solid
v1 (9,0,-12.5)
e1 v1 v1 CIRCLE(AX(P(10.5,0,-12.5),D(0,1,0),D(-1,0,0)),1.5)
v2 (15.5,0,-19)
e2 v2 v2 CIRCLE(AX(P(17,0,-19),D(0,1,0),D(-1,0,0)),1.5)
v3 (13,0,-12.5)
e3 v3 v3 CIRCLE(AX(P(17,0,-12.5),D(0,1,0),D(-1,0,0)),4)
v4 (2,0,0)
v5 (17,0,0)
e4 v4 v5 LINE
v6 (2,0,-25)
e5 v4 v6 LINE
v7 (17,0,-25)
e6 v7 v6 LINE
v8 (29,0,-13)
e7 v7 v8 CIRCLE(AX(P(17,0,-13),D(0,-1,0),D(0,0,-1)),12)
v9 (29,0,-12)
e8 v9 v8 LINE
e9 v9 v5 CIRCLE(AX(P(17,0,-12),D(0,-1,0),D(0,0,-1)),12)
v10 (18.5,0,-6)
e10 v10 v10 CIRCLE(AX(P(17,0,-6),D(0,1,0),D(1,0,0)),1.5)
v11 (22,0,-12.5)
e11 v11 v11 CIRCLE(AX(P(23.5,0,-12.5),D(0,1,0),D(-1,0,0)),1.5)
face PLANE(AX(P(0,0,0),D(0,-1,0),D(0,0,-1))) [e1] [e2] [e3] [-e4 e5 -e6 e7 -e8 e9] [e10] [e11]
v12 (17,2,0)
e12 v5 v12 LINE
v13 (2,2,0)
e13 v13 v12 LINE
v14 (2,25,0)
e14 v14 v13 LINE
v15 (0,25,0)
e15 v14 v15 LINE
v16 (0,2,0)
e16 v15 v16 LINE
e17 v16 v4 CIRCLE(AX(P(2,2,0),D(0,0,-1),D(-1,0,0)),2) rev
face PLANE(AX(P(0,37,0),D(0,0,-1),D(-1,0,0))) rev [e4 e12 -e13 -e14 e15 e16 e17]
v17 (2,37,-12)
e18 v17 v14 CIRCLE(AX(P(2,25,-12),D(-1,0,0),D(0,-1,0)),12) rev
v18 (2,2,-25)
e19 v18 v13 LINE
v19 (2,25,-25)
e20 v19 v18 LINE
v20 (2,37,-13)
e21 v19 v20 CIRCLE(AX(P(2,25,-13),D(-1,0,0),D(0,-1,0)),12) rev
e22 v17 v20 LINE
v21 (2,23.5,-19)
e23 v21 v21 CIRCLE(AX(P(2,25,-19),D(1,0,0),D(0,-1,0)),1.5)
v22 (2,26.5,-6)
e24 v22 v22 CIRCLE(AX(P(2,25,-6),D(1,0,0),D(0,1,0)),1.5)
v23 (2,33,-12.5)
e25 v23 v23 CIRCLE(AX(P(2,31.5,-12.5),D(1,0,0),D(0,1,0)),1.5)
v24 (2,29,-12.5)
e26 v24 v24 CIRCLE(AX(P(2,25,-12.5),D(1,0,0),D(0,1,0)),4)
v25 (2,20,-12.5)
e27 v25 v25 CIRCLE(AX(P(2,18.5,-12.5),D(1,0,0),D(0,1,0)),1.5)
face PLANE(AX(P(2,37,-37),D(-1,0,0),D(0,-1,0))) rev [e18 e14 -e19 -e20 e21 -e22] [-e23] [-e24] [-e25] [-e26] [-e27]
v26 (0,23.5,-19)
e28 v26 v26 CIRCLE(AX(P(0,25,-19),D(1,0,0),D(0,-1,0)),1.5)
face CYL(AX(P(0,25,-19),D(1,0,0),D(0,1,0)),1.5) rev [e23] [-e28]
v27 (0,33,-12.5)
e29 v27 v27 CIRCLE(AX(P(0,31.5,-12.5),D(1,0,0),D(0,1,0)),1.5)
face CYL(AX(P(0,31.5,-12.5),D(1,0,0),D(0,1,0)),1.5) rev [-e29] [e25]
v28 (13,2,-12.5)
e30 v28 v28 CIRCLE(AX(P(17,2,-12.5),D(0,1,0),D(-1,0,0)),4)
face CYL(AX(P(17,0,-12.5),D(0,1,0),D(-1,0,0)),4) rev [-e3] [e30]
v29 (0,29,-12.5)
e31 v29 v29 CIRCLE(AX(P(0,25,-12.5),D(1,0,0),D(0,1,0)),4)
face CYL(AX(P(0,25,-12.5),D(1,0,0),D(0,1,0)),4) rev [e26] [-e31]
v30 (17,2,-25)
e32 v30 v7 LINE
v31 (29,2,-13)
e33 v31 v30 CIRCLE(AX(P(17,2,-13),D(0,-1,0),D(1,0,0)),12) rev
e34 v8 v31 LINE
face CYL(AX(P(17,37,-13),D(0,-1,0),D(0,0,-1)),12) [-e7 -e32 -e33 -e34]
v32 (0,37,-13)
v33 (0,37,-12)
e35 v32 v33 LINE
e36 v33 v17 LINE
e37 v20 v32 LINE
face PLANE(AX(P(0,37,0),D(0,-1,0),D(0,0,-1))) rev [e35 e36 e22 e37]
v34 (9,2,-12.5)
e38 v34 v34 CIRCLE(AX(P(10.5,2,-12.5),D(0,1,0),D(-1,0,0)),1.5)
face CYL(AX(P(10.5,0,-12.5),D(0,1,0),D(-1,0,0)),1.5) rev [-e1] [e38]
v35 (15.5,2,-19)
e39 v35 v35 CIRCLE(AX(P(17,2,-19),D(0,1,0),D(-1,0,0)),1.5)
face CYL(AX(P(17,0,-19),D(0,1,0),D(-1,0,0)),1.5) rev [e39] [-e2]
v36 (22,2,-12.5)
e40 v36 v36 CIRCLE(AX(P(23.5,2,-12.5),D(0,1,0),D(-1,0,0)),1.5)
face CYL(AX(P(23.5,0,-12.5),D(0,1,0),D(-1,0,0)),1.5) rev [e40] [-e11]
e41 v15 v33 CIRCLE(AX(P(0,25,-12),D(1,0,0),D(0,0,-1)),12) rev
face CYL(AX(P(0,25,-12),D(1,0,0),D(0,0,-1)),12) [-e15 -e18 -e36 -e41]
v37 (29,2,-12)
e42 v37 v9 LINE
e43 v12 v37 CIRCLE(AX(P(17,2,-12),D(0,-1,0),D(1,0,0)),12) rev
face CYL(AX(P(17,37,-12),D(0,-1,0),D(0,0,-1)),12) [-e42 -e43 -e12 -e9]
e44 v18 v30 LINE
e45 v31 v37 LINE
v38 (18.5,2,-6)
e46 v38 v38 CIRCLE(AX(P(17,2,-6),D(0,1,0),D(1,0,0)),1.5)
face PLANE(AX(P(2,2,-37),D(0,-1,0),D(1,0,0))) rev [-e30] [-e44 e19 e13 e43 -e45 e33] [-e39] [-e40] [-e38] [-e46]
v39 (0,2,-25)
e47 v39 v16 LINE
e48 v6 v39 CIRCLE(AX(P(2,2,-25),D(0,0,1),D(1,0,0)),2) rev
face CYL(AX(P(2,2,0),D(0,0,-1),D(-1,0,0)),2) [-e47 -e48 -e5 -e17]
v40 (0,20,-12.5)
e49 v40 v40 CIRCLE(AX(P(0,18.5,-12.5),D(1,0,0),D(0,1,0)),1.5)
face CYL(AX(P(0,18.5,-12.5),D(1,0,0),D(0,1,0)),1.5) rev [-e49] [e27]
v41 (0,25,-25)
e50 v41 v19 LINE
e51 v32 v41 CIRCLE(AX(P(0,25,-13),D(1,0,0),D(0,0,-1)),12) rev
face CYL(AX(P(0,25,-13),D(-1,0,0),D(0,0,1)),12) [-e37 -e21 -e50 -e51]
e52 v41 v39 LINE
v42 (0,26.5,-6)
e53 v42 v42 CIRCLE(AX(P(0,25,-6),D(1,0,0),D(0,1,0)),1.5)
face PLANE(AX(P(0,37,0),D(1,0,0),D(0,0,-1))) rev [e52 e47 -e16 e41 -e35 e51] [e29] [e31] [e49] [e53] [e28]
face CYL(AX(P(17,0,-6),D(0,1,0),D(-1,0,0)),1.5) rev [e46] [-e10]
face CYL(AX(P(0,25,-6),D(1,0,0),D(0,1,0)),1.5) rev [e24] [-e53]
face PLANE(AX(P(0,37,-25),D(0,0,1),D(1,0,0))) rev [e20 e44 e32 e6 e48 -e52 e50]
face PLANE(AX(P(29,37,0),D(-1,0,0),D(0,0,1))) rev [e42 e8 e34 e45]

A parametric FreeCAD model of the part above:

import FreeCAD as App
import Part
import Sketcher
Q = App.Units.Quantity


def edges_at(feature, points):
    """Names of the edges that pass closest to the given points."""
    edges = feature.Shape.Edges
    near = lambda p: min(range(len(edges)), key=lambda i: edges[i].distToShape(Part.Vertex(*p))[0])
    return sorted({f"Edge{near(p) + 1}" for p in points})


def add_polygon(sketch, points):
    """Adds a closed chain of lines whose ends are joined by coincident constraints."""
    first, n = sketch.GeometryCount, len(points)
    for a, b in zip(points, points[1:] + points[:1]):
        sketch.addGeometry(Part.LineSegment(App.Vector(*a, 0), App.Vector(*b, 0)), False)
    for i in range(n):
        sketch.addConstraint(Sketcher.Constraint("Coincident", first + i, 2, first + (i + 1) % n, 1))

doc = App.newDocument("Part")
params = doc.addObject("Spreadsheet::Sheet", "Params")
for row, (alias, value) in enumerate([
    ("sketch1_width", "29 mm"),
    ("sketch1_height", "25 mm"),
    ("pad1_length", "37 mm"),
    ("sketch2_width", "27 mm"),
    ("sketch2_height", "35 mm"),
    ("pocket1_length", "37 mm"),
    ("fillet_radius", "2 mm"),
    ("sketch3_diameter", "3 mm"),
    ("sketch3_diameter2", "8 mm"),
    ("fillet2_radius", "12 mm"),
    ("fillet3_radius", "12 mm"),
    ("sketch4_diameter", "3 mm"),
    ("sketch4_diameter2", "8 mm"),
], start=1):
    params.set(f"A{row}", alias)
    params.set(f"B{row}", "=" + value)
    params.setAlias(f"B{row}", alias)

body = doc.addObject("PartDesign::Body", "Body")

sketch1 = body.newObject("Sketcher::SketchObject", "Sketch")
sketch1.AttachmentSupport = (doc.getObject("XZ_Plane"), [""])
sketch1.MapMode = "FlatFace"
add_polygon(sketch1, [(0, -25), (0, 0), (29, 0), (29, -25)])
sketch1.addConstraint([
    Sketcher.Constraint("Vertical", 0),
    Sketcher.Constraint("Horizontal", 1),
    Sketcher.Constraint("Vertical", 2),
    Sketcher.Constraint("Horizontal", 3),
    Sketcher.Constraint("Coincident", 0, 2, -1, 1),
    Sketcher.Constraint("DistanceX", 1, 1, 1, 2, Q("29 mm")),
    Sketcher.Constraint("DistanceY", 0, 1, 0, 2, Q("25 mm")),
])
sketch1.setExpression("Constraints[9]", "Params.sketch1_width")
sketch1.setExpression("Constraints[10]", "Params.sketch1_height")
pad1 = body.newObject("PartDesign::Pad", "Pad")
pad1.Profile = sketch1
pad1.setExpression("Length", "Params.pad1_length")
pad1.Reversed = True

sketch2 = body.newObject("Sketcher::SketchObject", "Sketch001")
sketch2.AttachmentSupport = (doc.getObject("XY_Plane"), [""])
sketch2.MapMode = "FlatFace"
add_polygon(sketch2, [(2, 37), (2, 2), (29, 2), (29, 37)])
sketch2.addConstraint([
    Sketcher.Constraint("Vertical", 0),
    Sketcher.Constraint("Horizontal", 1),
    Sketcher.Constraint("Vertical", 2),
    Sketcher.Constraint("Horizontal", 3),
    Sketcher.Constraint("DistanceX", 1, 1, 1, 2, Q("27 mm")),
    Sketcher.Constraint("DistanceY", 0, 2, 0, 1, Q("35 mm")),
    Sketcher.Constraint("DistanceX", -1, 1, 0, 2, Q("2 mm")),
    Sketcher.Constraint("DistanceY", -1, 1, 0, 2, Q("2 mm")),
])
sketch2.setExpression("Constraints[8]", "Params.sketch2_width")
sketch2.setExpression("Constraints[9]", "Params.sketch2_height")
pocket1 = body.newObject("PartDesign::Pocket", "Pocket")
pocket1.Profile = sketch2
pocket1.setExpression("Length", "Params.pocket1_length")
doc.recompute()

fillet = body.newObject("PartDesign::Fillet", "Fillet")
fillet.Base = (pocket1, edges_at(pocket1, [(0, 0, -12.5)]))
fillet.setExpression("Radius", "Params.fillet_radius")

sketch3 = body.newObject("Sketcher::SketchObject", "Sketch002")
sketch3.AttachmentSupport = (doc.getObject("XZ_Plane"), [""])
sketch3.MapMode = "FlatFace"
sketch3.AttachmentOffset = App.Placement(App.Vector(0, 0, -2), App.Rotation())
sketch3.addGeometry([
    Part.Circle(App.Vector(23.5, -12.5, 0), App.Vector(0, 0, 1), 1.5),
    Part.Circle(App.Vector(17, -12.5, 0), App.Vector(0, 0, 1), 4),
    Part.Circle(App.Vector(10.5, -12.5, 0), App.Vector(0, 0, 1), 1.5),
    Part.Circle(App.Vector(17, -19, 0), App.Vector(0, 0, 1), 1.5),
    Part.Circle(App.Vector(17, -6, 0), App.Vector(0, 0, 1), 1.5),
], False)
sketch3.addConstraint([
    Sketcher.Constraint("Equal", 0, 2),
    Sketcher.Constraint("Equal", 2, 3),
    Sketcher.Constraint("Equal", 3, 4),
    Sketcher.Constraint("Horizontal", 0, 3, 1, 3),
    Sketcher.Constraint("Horizontal", 1, 3, 2, 3),
    Sketcher.Constraint("Vertical", 1, 3, 3, 3),
    Sketcher.Constraint("Vertical", 3, 3, 4, 3),
    Sketcher.Constraint("Diameter", 0, Q("3 mm")),
    Sketcher.Constraint("Diameter", 1, Q("8 mm")),
    Sketcher.Constraint("DistanceX", -1, 1, 1, 3, Q("17 mm")),
    Sketcher.Constraint("DistanceY", 3, 3, -1, 1, Q("19 mm")),
    Sketcher.Constraint("DistanceY", 4, 3, -1, 1, Q("6 mm")),
    Sketcher.Constraint("DistanceX", 2, 3, 0, 3, Q("13 mm")),
    Sketcher.Constraint("DistanceX", -1, 1, 0, 3, Q("23.5 mm")),
    Sketcher.Constraint("DistanceY", 0, 3, -1, 1, Q("12.5 mm")),
])
sketch3.setExpression("Constraints[7]", "Params.sketch3_diameter")
sketch3.setExpression("Constraints[8]", "Params.sketch3_diameter2")
pocket2 = body.newObject("PartDesign::Pocket", "Pocket001")
pocket2.Profile = sketch3
pocket2.Type = "ThroughAll"
pocket2.Reversed = True
doc.recompute()

fillet2 = body.newObject("PartDesign::Fillet", "Fillet001")
fillet2.Base = (pocket2, edges_at(pocket2, [(29, 1, -25), (29, 1, 0)]))
fillet2.setExpression("Radius", "Params.fillet2_radius")
doc.recompute()

fillet3 = body.newObject("PartDesign::Fillet", "Fillet002")
fillet3.Base = (fillet2, edges_at(fillet2, [(1, 37, -25), (1, 37, 0)]))
fillet3.setExpression("Radius", "Params.fillet3_radius")

sketch4 = body.newObject("Sketcher::SketchObject", "Sketch003")
sketch4.AttachmentSupport = (doc.getObject("YZ_Plane"), [""])
sketch4.MapMode = "FlatFace"
sketch4.AttachmentOffset = App.Placement(App.Vector(0, 0, 2), App.Rotation())
sketch4.addGeometry([
    Part.Circle(App.Vector(31.5, -12.5, 0), App.Vector(0, 0, 1), 1.5),
    Part.Circle(App.Vector(25, -12.5, 0), App.Vector(0, 0, 1), 4),
    Part.Circle(App.Vector(25, -6, 0), App.Vector(0, 0, 1), 1.5),
    Part.Circle(App.Vector(25, -19, 0), App.Vector(0, 0, 1), 1.5),
    Part.Circle(App.Vector(18.5, -12.5, 0), App.Vector(0, 0, 1), 1.5),
], False)
sketch4.addConstraint([
    Sketcher.Constraint("Equal", 0, 2),
    Sketcher.Constraint("Equal", 2, 3),
    Sketcher.Constraint("Equal", 3, 4),
    Sketcher.Constraint("Horizontal", 0, 3, 1, 3),
    Sketcher.Constraint("Horizontal", 1, 3, 4, 3),
    Sketcher.Constraint("Vertical", 1, 3, 2, 3),
    Sketcher.Constraint("Vertical", 2, 3, 3, 3),
    Sketcher.Constraint("Diameter", 0, Q("3 mm")),
    Sketcher.Constraint("Diameter", 1, Q("8 mm")),
    Sketcher.Constraint("DistanceX", -1, 1, 1, 3, Q("25 mm")),
    Sketcher.Constraint("DistanceY", 2, 3, -1, 1, Q("6 mm")),
    Sketcher.Constraint("DistanceY", 3, 3, -1, 1, Q("19 mm")),
    Sketcher.Constraint("DistanceX", 4, 3, 0, 3, Q("13 mm")),
    Sketcher.Constraint("DistanceX", -1, 1, 0, 3, Q("31.5 mm")),
    Sketcher.Constraint("DistanceY", 0, 3, -1, 1, Q("12.5 mm")),
])
sketch4.setExpression("Constraints[7]", "Params.sketch4_diameter")
sketch4.setExpression("Constraints[8]", "Params.sketch4_diameter2")
pocket3 = body.newObject("PartDesign::Pocket", "Pocket002")
pocket3.Profile = sketch4
pocket3.Type = "ThroughAll"

doc.recompute()
